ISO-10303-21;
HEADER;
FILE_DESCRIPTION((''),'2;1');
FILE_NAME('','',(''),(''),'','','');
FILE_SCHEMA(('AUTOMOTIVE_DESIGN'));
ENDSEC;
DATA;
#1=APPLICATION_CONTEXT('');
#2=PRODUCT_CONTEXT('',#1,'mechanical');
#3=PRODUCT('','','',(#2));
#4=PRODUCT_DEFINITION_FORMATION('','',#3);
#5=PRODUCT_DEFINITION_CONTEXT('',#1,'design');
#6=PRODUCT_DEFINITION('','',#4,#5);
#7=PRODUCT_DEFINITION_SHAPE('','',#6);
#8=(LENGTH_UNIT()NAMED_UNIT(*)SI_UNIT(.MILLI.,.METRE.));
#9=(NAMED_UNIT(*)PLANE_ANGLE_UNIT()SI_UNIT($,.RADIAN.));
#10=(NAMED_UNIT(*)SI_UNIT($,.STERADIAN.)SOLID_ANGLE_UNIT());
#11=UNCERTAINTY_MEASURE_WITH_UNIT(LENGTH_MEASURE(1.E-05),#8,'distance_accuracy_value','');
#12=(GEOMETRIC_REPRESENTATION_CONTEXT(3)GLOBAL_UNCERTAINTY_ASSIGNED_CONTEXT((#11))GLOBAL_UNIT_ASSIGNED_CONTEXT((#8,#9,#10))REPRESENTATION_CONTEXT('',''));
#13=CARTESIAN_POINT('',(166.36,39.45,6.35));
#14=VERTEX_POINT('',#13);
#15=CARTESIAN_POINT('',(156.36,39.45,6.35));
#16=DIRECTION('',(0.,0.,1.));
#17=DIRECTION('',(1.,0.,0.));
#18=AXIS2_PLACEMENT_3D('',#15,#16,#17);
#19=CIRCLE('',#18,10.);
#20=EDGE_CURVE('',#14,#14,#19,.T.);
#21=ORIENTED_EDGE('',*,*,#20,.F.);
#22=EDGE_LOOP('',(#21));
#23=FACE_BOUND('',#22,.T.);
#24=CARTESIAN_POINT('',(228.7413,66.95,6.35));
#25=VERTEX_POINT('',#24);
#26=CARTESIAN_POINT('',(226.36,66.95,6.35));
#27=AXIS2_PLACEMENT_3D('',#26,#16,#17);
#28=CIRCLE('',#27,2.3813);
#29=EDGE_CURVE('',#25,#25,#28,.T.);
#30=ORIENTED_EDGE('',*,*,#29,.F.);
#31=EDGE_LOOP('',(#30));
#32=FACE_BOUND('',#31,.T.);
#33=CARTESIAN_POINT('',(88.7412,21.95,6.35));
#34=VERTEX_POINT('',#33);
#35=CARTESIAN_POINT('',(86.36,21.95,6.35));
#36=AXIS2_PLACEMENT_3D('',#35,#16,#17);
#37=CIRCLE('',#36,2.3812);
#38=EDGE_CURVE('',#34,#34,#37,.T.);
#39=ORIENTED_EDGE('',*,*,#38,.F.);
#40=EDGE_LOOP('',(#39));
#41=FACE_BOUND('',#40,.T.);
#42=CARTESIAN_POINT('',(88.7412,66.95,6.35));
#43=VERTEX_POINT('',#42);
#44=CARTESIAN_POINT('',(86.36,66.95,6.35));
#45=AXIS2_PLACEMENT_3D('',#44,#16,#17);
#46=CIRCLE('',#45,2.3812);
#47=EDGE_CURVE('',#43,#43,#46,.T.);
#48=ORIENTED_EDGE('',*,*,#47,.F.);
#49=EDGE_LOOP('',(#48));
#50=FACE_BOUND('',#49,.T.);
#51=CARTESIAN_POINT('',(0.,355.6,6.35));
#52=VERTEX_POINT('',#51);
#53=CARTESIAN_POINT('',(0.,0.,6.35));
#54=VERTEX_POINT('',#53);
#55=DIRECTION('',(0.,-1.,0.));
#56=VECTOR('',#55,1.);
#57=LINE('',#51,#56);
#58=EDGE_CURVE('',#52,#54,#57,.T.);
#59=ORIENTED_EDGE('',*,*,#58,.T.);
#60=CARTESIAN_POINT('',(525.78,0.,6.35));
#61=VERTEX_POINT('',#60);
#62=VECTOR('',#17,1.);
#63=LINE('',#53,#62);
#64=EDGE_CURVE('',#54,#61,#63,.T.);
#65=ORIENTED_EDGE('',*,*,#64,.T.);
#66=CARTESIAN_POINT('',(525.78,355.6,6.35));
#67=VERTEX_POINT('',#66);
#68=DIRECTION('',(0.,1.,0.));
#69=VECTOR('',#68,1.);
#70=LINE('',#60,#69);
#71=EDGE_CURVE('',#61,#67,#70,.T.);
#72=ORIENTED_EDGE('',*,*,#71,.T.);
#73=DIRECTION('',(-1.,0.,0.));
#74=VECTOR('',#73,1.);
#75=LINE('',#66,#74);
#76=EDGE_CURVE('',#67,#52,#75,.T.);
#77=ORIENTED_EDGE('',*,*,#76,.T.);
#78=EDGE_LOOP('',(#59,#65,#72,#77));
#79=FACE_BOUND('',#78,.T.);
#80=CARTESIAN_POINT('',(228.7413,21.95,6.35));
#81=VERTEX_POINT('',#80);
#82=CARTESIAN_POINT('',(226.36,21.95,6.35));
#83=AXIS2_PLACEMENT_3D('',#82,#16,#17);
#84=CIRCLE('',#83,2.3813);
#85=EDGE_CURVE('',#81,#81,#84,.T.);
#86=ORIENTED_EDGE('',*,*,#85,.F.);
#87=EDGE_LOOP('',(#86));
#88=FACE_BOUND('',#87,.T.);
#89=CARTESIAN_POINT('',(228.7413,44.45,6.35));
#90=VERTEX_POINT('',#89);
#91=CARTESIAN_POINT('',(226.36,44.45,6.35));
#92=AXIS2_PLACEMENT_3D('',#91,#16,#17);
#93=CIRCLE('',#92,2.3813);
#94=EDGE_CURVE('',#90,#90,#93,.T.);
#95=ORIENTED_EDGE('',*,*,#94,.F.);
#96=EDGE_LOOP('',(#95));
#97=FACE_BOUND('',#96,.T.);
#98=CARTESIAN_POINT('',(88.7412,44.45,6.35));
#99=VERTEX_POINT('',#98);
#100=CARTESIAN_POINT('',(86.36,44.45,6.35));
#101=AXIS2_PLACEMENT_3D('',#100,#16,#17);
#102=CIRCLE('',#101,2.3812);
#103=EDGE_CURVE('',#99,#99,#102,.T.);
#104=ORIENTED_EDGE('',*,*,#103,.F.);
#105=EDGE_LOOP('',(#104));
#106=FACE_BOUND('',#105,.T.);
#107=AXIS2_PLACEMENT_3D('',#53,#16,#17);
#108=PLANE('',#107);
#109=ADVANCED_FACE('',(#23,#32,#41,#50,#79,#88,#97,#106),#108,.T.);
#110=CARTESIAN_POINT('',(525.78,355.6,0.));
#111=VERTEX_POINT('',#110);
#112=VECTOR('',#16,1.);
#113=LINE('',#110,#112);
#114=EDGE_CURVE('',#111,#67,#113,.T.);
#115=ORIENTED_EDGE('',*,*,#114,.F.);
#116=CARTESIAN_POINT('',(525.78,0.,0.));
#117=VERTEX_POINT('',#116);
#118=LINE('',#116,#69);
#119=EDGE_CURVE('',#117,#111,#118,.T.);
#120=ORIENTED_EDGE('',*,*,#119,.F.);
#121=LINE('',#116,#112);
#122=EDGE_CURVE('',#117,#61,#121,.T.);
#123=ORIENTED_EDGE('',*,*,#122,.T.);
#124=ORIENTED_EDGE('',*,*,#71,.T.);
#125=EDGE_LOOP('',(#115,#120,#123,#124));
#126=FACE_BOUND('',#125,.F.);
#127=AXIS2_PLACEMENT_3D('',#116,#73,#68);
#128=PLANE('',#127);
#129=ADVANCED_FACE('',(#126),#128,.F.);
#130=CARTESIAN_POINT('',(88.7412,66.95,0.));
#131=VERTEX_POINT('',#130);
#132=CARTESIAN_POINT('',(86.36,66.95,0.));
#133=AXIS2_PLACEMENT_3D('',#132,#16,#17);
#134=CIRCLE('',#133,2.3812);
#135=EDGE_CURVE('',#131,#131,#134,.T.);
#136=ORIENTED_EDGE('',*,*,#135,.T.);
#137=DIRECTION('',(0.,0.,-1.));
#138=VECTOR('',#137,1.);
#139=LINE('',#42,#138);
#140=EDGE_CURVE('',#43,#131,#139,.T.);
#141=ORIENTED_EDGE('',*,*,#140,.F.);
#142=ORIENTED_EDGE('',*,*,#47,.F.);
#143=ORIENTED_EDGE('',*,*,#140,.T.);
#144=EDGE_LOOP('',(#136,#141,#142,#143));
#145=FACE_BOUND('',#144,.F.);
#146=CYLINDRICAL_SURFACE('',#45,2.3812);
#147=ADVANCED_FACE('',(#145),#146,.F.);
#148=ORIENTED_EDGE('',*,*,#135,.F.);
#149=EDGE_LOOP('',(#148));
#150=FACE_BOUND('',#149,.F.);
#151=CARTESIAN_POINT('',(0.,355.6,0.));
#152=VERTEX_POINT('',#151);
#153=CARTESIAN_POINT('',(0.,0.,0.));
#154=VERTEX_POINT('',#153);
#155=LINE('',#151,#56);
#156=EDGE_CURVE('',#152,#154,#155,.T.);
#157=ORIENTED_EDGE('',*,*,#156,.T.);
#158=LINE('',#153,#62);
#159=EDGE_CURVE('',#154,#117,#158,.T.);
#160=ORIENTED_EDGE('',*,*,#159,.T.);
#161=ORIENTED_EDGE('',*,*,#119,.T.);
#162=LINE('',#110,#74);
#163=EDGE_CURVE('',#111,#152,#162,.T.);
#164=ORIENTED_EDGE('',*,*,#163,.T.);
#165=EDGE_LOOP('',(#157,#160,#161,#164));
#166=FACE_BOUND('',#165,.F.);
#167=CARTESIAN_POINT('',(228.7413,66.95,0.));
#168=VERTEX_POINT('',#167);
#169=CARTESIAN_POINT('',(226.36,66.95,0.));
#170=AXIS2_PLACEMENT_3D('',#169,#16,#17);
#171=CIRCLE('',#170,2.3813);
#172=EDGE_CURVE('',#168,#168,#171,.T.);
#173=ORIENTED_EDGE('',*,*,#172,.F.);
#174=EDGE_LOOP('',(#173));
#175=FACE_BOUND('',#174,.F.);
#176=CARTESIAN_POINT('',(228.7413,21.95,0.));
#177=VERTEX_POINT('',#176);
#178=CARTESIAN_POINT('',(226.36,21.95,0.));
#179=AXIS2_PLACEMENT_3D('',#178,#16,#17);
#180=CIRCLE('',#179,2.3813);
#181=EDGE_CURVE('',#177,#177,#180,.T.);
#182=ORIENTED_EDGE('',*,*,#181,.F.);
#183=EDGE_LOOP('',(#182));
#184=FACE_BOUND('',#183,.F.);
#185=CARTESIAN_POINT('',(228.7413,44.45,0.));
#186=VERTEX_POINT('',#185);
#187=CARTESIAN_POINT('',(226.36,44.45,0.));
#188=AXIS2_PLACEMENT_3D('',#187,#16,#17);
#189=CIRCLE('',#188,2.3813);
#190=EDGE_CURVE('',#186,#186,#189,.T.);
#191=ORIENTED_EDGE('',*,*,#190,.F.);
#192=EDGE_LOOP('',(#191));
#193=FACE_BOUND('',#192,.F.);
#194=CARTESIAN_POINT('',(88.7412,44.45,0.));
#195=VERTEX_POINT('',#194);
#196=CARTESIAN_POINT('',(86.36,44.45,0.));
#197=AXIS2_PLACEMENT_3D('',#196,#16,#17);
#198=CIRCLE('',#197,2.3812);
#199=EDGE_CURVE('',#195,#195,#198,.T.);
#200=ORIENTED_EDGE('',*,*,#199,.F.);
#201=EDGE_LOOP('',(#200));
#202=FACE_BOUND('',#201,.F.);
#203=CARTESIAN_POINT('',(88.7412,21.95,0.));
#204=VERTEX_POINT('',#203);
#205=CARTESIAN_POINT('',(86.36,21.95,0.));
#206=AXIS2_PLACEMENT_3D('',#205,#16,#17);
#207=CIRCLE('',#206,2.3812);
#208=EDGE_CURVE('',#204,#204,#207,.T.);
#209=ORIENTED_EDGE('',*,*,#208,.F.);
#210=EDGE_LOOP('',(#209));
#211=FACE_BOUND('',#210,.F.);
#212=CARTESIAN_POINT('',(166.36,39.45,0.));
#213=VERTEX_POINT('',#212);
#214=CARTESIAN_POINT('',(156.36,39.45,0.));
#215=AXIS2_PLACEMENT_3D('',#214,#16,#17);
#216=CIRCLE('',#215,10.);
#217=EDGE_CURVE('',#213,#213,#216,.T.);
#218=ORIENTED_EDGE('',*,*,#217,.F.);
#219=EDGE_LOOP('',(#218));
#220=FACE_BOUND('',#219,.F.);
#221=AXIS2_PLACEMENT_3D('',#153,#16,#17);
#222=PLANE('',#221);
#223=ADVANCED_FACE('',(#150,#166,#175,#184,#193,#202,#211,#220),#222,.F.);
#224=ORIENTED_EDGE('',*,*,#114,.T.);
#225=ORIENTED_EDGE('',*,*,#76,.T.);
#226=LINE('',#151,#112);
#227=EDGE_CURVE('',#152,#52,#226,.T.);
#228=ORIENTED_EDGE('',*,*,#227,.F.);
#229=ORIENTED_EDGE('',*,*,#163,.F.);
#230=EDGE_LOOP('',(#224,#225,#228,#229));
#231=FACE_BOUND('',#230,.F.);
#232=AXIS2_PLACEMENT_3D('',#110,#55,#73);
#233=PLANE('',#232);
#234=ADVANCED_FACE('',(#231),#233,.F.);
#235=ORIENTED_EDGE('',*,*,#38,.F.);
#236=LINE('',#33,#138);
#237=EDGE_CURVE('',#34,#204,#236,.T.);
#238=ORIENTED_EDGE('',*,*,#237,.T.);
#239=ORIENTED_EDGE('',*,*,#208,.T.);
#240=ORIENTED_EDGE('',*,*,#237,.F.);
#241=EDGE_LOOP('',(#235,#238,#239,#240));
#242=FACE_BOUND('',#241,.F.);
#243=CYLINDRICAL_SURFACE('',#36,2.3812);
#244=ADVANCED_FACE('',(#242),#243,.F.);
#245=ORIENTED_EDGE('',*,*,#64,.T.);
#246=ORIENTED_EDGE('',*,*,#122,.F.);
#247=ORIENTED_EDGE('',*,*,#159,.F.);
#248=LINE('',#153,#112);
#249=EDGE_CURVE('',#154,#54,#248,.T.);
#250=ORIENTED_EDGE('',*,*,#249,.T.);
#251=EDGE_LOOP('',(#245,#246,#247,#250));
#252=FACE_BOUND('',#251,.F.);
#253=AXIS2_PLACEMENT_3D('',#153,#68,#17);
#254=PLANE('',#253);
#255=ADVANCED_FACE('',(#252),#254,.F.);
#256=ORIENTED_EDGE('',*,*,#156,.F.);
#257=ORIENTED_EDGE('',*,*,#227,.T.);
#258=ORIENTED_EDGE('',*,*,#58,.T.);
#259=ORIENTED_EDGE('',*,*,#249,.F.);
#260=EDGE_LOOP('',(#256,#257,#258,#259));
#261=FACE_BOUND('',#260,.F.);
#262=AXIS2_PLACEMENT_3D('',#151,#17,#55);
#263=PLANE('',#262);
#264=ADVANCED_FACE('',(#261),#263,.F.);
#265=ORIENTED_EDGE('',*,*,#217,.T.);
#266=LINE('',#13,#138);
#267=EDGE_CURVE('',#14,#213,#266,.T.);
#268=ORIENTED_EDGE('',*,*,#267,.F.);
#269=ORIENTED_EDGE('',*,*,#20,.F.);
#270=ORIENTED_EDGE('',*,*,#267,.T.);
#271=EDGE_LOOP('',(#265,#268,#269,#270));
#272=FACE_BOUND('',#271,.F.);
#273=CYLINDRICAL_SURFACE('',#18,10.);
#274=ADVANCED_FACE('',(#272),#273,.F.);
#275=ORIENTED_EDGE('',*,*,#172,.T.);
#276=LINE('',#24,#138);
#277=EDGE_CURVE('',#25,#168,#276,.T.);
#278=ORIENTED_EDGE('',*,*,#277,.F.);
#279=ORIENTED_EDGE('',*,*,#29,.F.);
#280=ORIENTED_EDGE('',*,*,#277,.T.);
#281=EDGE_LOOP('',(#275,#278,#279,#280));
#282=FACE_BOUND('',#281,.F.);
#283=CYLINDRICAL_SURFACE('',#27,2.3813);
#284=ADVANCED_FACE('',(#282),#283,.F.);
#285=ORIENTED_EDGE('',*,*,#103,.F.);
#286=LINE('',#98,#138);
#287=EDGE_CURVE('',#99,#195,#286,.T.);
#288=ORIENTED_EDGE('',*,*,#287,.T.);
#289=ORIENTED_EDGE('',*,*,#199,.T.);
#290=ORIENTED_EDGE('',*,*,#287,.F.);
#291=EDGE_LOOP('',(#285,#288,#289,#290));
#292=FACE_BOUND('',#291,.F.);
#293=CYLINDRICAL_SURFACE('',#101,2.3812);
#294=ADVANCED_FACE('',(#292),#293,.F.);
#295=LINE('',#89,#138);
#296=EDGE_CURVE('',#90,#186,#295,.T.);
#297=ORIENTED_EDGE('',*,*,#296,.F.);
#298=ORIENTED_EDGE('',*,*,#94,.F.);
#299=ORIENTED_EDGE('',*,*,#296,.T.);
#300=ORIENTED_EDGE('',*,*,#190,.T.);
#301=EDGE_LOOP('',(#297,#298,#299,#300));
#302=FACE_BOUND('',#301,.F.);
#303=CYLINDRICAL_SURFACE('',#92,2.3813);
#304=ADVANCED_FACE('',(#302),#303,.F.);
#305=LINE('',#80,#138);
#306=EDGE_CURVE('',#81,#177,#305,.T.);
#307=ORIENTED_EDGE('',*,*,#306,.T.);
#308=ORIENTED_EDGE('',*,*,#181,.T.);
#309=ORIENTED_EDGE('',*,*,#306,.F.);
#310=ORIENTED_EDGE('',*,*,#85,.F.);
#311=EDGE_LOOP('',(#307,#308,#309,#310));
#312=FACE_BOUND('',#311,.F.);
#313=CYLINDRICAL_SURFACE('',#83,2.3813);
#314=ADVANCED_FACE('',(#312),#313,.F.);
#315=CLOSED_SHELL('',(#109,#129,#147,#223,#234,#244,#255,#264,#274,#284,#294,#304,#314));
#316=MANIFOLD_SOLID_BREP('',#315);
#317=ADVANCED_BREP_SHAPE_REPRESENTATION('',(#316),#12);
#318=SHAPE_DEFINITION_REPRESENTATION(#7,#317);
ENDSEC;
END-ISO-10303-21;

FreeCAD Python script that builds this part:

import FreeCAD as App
import Part
import Sketcher
Q = App.Units.Quantity


def add_polygon(sketch, points):
    """Adds a closed chain of lines whose ends are joined by coincident constraints."""
    first, n = sketch.GeometryCount, len(points)
    for a, b in zip(points, points[1:] + points[:1]):
        sketch.addGeometry(Part.LineSegment(App.Vector(*a, 0), App.Vector(*b, 0)), False)
    for i in range(n):
        sketch.addConstraint(Sketcher.Constraint("Coincident", first + i, 2, first + (i + 1) % n, 1))

doc = App.newDocument("Part")
body = doc.addObject("PartDesign::Body", "Body")

# Sketch on XY plane
sketch1 = body.newObject("Sketcher::SketchObject", "Sketch")
sketch1.AttachmentSupport = (doc.getObject("XY_Plane"), [""])
sketch1.MapMode = "FlatFace"
add_polygon(sketch1, [(0, 356), (0, 0), (526, 0), (526, 356)])  # lines 0-3
sketch1.addConstraint([
    Sketcher.Constraint("Vertical", 0),
    Sketcher.Constraint("Horizontal", 1),
    Sketcher.Constraint("Vertical", 2),
    Sketcher.Constraint("Horizontal", 3),
    Sketcher.Constraint("Coincident", 0, 2, -1, 1),
    Sketcher.Constraint("DistanceY", 0, 2, 0, 1, Q("14 in")),
    Sketcher.Constraint("DistanceX", 1, 1, 1, 2, Q("20.7 in")),
])
pad1 = body.newObject("PartDesign::Pad", "Pad")
pad1.Profile = sketch1
pad1.Length = Q("0.25 in")

# Sketch on XY plane
sketch2 = body.newObject("Sketcher::SketchObject", "Sketch001")
sketch2.AttachmentSupport = (doc.getObject("XY_Plane"), [""])
sketch2.MapMode = "FlatFace"
sketch2.AttachmentOffset = App.Placement(App.Vector(0, 0, 0.25 * 25.4), App.Rotation())
sketch2.addGeometry([
    Part.Circle(App.Vector(86.4, 67, 0), App.Vector(0, 0, 1), 2.4),  # 0
    Part.Circle(App.Vector(86.4, 44.5, 0), App.Vector(0, 0, 1), 2.4),  # 1
    Part.Circle(App.Vector(86.4, 21.9, 0), App.Vector(0, 0, 1), 2.4),  # 2
    Part.Circle(App.Vector(226.4, 21.9, 0), App.Vector(0, 0, 1), 2.4),  # 3
    Part.Circle(App.Vector(226.4, 44.5, 0), App.Vector(0, 0, 1), 2.4),  # 4
    Part.Circle(App.Vector(226.4, 67, 0), App.Vector(0, 0, 1), 2.4),  # 5
    Part.Circle(App.Vector(156.4, 39.5, 0), App.Vector(0, 0, 1), 10),  # 6
], False)
sketch2.addConstraint([
    Sketcher.Constraint("Equal", 0, 1),
    Sketcher.Constraint("Equal", 1, 2),
    Sketcher.Constraint("Equal", 2, 3),
    Sketcher.Constraint("Equal", 3, 4),
    Sketcher.Constraint("Equal", 4, 5),
    Sketcher.Constraint("Horizontal", 2, 3, 3, 3),
    Sketcher.Constraint("Horizontal", 1, 3, 4, 3),
    Sketcher.Constraint("Horizontal", 0, 3, 5, 3),
    Sketcher.Constraint("Vertical", 0, 3, 1, 3),
    Sketcher.Constraint("Vertical", 1, 3, 2, 3),
    Sketcher.Constraint("Vertical", 3, 3, 4, 3),
    Sketcher.Constraint("Vertical", 4, 3, 5, 3),
    Sketcher.Constraint("Diameter", 0, Q("0.1875 in")),
    Sketcher.Constraint("Diameter", 6, Q("0.7874 in")),
    Sketcher.Constraint("DistanceX", -1, 1, 0, 3, Q("3.4 in")),
    Sketcher.Constraint("DistanceX", 2, 3, 3, 3, Q("5.5118 in")),
    Sketcher.Constraint("DistanceY", -1, 1, 1, 3, Q("1.75 in")),
    Sketcher.Constraint("DistanceY", 2, 3, 0, 3, Q("45 mm")),
    Sketcher.Constraint("DistanceX", -1, 1, 6, 3, Q("6.1559 in")),
    Sketcher.Constraint("DistanceY", -1, 1, 0, 3, Q("66.95 mm")),
    Sketcher.Constraint("DistanceY", -1, 1, 6, 3, Q("39.45 mm")),
])
pocket1 = body.newObject("PartDesign::Pocket", "Pocket")
pocket1.Profile = sketch2
pocket1.Type = "ThroughAll"

doc.recompute()
